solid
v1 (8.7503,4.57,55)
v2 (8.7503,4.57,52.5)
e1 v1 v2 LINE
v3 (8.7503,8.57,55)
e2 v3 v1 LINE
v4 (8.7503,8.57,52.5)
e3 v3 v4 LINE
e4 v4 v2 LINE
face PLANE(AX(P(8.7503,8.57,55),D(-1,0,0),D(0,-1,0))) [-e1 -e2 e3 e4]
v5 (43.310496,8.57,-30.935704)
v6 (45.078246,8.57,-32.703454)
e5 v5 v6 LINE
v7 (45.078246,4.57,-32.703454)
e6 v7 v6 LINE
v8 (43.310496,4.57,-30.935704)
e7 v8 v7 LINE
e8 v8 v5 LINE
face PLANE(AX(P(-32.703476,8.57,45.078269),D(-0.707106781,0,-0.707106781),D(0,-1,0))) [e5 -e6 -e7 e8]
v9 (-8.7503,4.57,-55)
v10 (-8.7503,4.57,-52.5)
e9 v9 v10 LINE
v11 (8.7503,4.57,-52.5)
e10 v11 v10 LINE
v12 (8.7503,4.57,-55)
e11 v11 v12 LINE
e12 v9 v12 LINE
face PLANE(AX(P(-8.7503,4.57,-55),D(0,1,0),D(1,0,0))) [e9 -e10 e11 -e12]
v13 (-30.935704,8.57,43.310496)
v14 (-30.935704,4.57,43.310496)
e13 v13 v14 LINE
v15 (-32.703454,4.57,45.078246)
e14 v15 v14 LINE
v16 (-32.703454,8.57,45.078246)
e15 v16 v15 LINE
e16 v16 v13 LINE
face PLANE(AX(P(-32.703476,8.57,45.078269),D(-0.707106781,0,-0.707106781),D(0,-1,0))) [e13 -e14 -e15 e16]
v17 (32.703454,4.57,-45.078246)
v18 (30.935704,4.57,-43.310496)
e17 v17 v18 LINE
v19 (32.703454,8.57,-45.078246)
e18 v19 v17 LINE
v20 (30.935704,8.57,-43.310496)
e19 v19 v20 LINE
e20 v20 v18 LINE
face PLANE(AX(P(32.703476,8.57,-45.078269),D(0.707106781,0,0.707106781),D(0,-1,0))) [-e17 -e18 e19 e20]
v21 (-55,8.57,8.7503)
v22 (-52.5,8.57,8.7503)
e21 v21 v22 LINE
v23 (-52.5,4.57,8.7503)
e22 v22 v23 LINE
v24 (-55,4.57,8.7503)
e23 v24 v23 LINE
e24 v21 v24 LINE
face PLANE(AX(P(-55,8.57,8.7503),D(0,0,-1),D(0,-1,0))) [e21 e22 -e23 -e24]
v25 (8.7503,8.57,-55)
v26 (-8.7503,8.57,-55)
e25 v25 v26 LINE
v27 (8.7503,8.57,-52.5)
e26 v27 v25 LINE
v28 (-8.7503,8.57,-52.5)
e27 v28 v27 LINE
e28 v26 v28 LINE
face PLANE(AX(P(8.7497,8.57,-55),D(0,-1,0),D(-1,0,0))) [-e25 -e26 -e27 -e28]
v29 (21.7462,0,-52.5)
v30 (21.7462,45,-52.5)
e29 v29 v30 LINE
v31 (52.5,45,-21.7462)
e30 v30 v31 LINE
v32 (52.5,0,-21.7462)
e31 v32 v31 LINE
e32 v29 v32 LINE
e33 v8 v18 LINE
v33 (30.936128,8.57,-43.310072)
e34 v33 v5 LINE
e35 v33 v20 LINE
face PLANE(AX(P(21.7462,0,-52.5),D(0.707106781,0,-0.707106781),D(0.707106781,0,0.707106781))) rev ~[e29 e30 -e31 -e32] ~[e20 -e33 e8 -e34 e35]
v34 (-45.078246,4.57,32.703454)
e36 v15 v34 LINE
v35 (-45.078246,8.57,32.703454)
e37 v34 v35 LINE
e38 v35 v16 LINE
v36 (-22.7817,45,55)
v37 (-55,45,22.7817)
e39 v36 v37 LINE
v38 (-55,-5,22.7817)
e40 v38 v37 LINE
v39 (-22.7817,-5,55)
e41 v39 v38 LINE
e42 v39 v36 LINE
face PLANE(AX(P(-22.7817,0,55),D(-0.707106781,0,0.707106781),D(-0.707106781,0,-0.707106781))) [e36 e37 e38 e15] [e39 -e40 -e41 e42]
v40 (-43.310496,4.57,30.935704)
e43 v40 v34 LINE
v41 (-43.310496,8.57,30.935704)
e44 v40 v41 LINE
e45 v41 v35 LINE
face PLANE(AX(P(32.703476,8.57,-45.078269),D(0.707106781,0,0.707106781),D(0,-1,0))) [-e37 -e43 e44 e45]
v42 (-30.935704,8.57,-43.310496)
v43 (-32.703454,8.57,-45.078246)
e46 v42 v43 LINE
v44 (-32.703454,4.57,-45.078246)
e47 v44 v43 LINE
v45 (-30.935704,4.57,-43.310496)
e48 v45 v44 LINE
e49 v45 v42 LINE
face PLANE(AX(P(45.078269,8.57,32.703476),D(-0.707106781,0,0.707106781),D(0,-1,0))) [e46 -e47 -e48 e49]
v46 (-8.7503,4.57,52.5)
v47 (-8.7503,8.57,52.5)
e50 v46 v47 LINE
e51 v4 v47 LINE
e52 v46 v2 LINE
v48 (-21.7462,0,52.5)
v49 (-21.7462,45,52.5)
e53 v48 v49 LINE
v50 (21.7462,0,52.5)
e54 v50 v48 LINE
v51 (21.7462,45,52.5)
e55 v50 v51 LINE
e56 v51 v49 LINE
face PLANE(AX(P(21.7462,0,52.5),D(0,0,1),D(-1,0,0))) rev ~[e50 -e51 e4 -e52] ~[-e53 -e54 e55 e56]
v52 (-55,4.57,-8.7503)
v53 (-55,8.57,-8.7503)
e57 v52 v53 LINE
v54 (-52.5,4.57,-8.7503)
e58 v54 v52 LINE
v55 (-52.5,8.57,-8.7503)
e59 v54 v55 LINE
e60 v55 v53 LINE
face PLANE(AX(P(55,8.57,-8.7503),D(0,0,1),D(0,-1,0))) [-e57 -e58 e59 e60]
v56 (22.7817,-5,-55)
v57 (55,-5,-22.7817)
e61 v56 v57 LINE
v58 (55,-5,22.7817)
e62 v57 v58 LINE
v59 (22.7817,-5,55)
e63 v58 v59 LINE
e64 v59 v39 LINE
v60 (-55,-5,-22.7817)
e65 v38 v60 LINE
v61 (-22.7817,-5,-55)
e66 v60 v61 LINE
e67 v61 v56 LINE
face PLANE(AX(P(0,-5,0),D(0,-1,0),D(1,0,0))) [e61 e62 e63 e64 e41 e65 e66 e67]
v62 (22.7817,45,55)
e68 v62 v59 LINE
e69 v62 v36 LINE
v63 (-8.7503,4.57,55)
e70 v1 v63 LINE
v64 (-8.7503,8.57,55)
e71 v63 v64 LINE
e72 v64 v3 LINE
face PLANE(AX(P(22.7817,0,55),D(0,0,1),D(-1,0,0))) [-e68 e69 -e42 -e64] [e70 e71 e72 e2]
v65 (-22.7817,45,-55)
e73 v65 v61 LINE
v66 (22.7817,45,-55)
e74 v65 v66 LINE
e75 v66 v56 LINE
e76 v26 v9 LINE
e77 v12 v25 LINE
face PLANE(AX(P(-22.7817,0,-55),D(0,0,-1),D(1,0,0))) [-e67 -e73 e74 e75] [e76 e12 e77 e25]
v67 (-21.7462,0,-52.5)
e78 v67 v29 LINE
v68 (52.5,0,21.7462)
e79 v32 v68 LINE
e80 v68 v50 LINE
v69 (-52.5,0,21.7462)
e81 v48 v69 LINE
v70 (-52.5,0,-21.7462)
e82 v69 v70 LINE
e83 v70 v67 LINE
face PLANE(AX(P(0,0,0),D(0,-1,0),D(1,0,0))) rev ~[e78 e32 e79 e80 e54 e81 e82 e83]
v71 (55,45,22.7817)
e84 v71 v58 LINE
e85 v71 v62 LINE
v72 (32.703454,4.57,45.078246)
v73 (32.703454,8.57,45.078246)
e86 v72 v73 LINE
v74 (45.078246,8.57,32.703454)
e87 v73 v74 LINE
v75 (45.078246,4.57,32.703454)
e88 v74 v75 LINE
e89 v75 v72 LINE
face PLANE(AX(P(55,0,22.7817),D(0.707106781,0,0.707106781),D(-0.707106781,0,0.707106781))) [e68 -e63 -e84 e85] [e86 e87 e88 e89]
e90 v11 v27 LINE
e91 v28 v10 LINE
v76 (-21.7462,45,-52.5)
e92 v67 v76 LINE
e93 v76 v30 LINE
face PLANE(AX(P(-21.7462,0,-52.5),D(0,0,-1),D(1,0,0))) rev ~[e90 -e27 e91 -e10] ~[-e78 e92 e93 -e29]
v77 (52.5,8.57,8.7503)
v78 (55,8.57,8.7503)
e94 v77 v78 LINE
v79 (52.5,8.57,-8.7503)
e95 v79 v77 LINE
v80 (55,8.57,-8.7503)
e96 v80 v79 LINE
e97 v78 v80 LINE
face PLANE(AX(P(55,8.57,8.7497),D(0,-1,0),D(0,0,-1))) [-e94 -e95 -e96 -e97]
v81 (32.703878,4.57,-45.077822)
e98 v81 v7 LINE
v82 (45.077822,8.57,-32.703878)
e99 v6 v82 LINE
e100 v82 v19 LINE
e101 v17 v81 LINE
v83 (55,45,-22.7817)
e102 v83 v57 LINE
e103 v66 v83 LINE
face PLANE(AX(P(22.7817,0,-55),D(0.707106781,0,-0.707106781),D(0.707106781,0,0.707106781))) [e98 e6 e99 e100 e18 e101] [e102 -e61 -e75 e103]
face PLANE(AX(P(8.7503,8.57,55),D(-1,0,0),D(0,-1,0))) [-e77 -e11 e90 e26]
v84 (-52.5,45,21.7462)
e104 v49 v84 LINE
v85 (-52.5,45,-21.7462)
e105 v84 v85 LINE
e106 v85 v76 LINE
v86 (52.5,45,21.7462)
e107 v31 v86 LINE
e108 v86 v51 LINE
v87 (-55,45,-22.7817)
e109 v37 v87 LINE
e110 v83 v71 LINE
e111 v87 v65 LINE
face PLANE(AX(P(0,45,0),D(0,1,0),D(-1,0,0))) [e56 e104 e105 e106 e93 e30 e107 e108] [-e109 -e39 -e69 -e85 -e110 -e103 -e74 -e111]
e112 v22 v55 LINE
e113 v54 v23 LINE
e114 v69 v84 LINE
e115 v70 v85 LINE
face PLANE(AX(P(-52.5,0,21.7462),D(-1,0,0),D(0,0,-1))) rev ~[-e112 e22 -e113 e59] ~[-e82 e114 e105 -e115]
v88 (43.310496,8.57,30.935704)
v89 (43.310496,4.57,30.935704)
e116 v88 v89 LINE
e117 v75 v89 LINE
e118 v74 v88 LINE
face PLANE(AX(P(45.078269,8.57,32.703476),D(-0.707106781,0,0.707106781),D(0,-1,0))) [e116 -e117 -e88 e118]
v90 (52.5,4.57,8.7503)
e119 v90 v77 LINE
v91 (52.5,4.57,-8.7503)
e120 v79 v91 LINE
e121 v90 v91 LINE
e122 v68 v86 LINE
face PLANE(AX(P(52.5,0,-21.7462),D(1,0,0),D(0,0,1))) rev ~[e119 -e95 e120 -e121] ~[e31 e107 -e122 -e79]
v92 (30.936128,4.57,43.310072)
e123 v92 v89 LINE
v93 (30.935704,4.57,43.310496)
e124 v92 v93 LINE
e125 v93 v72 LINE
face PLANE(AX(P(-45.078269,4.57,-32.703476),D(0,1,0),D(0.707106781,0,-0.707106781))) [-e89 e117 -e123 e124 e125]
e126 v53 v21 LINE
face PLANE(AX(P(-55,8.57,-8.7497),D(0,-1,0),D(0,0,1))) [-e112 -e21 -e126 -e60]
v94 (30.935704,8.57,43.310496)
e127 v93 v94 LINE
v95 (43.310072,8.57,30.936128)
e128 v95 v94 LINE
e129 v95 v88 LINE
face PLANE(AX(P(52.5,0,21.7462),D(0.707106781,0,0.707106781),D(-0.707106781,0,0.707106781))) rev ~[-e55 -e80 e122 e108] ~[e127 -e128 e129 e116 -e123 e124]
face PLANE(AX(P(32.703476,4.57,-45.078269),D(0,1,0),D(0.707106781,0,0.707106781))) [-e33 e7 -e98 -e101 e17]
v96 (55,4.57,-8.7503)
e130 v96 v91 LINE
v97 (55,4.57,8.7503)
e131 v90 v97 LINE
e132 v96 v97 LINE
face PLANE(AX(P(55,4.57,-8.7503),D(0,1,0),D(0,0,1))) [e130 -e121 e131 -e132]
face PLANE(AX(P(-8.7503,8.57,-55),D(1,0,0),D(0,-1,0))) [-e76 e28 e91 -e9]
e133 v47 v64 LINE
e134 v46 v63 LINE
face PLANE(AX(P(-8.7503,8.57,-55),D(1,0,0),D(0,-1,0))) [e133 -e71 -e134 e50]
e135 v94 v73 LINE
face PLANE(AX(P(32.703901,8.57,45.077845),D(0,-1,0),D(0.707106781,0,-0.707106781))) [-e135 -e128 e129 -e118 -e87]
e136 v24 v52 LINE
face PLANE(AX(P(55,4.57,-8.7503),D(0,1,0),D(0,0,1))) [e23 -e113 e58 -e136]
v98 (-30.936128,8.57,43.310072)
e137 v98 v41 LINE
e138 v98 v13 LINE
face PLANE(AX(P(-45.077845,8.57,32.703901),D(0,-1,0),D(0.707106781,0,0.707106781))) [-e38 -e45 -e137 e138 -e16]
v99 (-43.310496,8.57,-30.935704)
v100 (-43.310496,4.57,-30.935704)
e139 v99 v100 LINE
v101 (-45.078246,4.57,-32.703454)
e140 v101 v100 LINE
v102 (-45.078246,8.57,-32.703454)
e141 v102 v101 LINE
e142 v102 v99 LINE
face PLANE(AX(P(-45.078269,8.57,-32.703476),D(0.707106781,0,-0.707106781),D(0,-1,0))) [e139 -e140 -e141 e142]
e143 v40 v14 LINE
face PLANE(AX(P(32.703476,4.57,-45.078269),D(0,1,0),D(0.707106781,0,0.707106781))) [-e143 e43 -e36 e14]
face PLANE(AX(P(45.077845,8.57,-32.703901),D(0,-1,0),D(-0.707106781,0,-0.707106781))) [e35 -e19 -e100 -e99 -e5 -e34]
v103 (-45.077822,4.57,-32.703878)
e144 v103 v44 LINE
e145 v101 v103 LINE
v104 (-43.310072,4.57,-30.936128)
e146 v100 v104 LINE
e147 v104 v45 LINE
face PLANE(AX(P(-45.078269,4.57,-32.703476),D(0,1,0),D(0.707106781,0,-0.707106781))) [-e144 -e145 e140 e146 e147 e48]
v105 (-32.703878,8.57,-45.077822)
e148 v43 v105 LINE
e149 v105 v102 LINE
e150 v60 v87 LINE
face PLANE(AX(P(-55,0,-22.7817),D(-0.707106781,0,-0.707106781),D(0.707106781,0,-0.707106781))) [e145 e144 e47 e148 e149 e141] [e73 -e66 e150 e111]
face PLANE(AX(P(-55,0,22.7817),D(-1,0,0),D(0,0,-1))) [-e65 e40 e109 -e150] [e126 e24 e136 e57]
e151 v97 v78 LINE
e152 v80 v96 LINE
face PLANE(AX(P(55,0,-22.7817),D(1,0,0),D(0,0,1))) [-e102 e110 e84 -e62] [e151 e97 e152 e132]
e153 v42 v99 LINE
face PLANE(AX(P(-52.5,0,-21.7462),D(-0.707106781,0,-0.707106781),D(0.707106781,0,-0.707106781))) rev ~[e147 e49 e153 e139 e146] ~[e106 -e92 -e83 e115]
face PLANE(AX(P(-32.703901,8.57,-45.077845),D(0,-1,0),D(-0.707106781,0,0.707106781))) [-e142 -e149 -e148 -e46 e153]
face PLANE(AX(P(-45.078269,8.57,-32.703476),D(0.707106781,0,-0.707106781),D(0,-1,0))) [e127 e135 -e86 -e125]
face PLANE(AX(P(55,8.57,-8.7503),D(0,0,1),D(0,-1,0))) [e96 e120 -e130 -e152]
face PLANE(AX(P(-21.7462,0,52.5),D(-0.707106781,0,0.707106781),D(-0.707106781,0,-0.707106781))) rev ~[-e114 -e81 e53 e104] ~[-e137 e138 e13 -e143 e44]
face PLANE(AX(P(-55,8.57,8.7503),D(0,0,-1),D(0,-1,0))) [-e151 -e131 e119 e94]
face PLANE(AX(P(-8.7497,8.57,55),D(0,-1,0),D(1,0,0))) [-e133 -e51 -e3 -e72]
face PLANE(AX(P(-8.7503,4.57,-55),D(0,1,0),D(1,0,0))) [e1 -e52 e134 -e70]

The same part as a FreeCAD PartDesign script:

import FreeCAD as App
import Part
import Sketcher

V = App.Vector

doc = App.newDocument("Part")
body = doc.addObject("PartDesign::Body", "Body")

sketch1 = body.newObject("Sketcher::SketchObject", "Sketch")
sketch1.AttachmentSupport = (doc.getObject("XZ_Plane"), [""])
sketch1.MapMode = "FlatFace"
sketch1.addGeometry([
    Part.LineSegment(V(-23, -55, 0), V(-55, -23, 0)),
    Part.LineSegment(V(-55, -23, 0), V(-55, 23, 0)),
    Part.LineSegment(V(-55, 23, 0), V(-23, 55, 0)),
    Part.LineSegment(V(-23, 55, 0), V(23, 55, 0)),
    Part.LineSegment(V(23, 55, 0), V(55, 23, 0)),
    Part.LineSegment(V(55, 23, 0), V(55, -23, 0)),
    Part.LineSegment(V(55, -23, 0), V(23, -55, 0)),
    Part.LineSegment(V(23, -55, 0), V(-23, -55, 0)),
    Part.LineSegment(V(-52, 22, 0), V(-52, -22, 0)),
    Part.LineSegment(V(-52, -22, 0), V(-22, -52, 0)),
    Part.LineSegment(V(-22, -52, 0), V(22, -52, 0)),
    Part.LineSegment(V(22, -52, 0), V(52, -22, 0)),
    Part.LineSegment(V(52, -22, 0), V(52, 22, 0)),
    Part.LineSegment(V(52, 22, 0), V(22, 52, 0)),
    Part.LineSegment(V(22, 52, 0), V(-22, 52, 0)),
    Part.LineSegment(V(-22, 52, 0), V(-52, 22, 0)),
], False)
sketch1.addConstraint([
    Sketcher.Constraint("Coincident", 0, 2, 1, 1),
    Sketcher.Constraint("Coincident", 1, 2, 2, 1),
    Sketcher.Constraint("Coincident", 2, 2, 3, 1),
    Sketcher.Constraint("Coincident", 3, 2, 4, 1),
    Sketcher.Constraint("Coincident", 4, 2, 5, 1),
    Sketcher.Constraint("Coincident", 5, 2, 6, 1),
    Sketcher.Constraint("Coincident", 6, 2, 7, 1),
    Sketcher.Constraint("Coincident", 7, 2, 0, 1),
    Sketcher.Constraint("Coincident", 8, 2, 9, 1),
    Sketcher.Constraint("Coincident", 9, 2, 10, 1),
    Sketcher.Constraint("Coincident", 10, 2, 11, 1),
    Sketcher.Constraint("Coincident", 11, 2, 12, 1),
    Sketcher.Constraint("Coincident", 12, 2, 13, 1),
    Sketcher.Constraint("Coincident", 13, 2, 14, 1),
    Sketcher.Constraint("Coincident", 14, 2, 15, 1),
    Sketcher.Constraint("Coincident", 15, 2, 8, 1),
    Sketcher.Constraint("Vertical", 1),
    Sketcher.Constraint("Horizontal", 3),
    Sketcher.Constraint("Vertical", 5),
    Sketcher.Constraint("Horizontal", 7),
    Sketcher.Constraint("Vertical", 8),
    Sketcher.Constraint("Horizontal", 10),
    Sketcher.Constraint("Vertical", 12),
    Sketcher.Constraint("Horizontal", 14),
    Sketcher.Constraint("Symmetric", 0, 2, 4, 2, -1, 1),
    Sketcher.Constraint("Symmetric", 2, 2, 6, 2, -1, 1),
    Sketcher.Constraint("Symmetric", 8, 2, 12, 2, -1, 1),
    Sketcher.Constraint("Symmetric", 9, 2, 13, 2, -1, 1),
    Sketcher.Constraint("Perpendicular", 0, 2),
    Sketcher.Constraint("Perpendicular", 2, 4),
    Sketcher.Constraint("Perpendicular", 4, 6),
    Sketcher.Constraint("Perpendicular", 6, 9),
    Sketcher.Constraint("Perpendicular", 9, 11),
    Sketcher.Constraint("Perpendicular", 13, 15),
    Sketcher.Constraint("Horizontal", 1, 2, 4, 2),
    Sketcher.Constraint("Horizontal", 8, 2, 11, 2),
    Sketcher.Constraint("Horizontal", 12, 2, 15, 2),
    Sketcher.Constraint("Vertical", 3, 2, 6, 2),
    Sketcher.Constraint("Equal", 7, 1),
    Sketcher.Constraint("Equal", 14, 8),
    Sketcher.Constraint("DistanceX", 1, 2, 4, 2, 110.0),
    Sketcher.Constraint("DistanceX", 0, 2, 8, 2, 2.5),
    Sketcher.Constraint("DistanceX", 3, 1, 3, 2, 45.5634),
    Sketcher.Constraint("DistanceX", 10, 1, 10, 2, 43.4924),
])
pad1 = body.newObject("PartDesign::Pad", "Pad")
pad1.Profile = sketch1
pad1.Length = 45
pad1.Reversed = True

sketch2 = body.newObject("Sketcher::SketchObject", "Sketch001")
sketch2.AttachmentSupport = (doc.getObject("XZ_Plane"), [""])
sketch2.MapMode = "FlatFace"
sketch2.addGeometry([
    Part.LineSegment(V(-55, 23, 0), V(-55, -23, 0)),
    Part.LineSegment(V(-55, -23, 0), V(-23, -55, 0)),
    Part.LineSegment(V(-23, -55, 0), V(23, -55, 0)),
    Part.LineSegment(V(23, -55, 0), V(55, -23, 0)),
    Part.LineSegment(V(55, -23, 0), V(55, 23, 0)),
    Part.LineSegment(V(55, 23, 0), V(23, 55, 0)),
    Part.LineSegment(V(23, 55, 0), V(-23, 55, 0)),
    Part.LineSegment(V(-23, 55, 0), V(-55, 23, 0)),
], False)
sketch2.addConstraint([
    Sketcher.Constraint("Coincident", 0, 2, 1, 1),
    Sketcher.Constraint("Coincident", 1, 2, 2, 1),
    Sketcher.Constraint("Coincident", 2, 2, 3, 1),
    Sketcher.Constraint("Coincident", 3, 2, 4, 1),
    Sketcher.Constraint("Coincident", 4, 2, 5, 1),
    Sketcher.Constraint("Coincident", 5, 2, 6, 1),
    Sketcher.Constraint("Coincident", 6, 2, 7, 1),
    Sketcher.Constraint("Coincident", 7, 2, 0, 1),
    Sketcher.Constraint("Vertical", 0),
    Sketcher.Constraint("Horizontal", 2),
    Sketcher.Constraint("Vertical", 4),
    Sketcher.Constraint("Horizontal", 6),
    Sketcher.Constraint("Symmetric", 0, 2, 4, 2, -1, 1),
    Sketcher.Constraint("Symmetric", 1, 2, 5, 2, -1, 1),
    Sketcher.Constraint("Perpendicular", 1, 3),
    Sketcher.Constraint("Perpendicular", 5, 7),
    Sketcher.Constraint("Horizontal", 0, 2, 3, 2),
    Sketcher.Constraint("Horizontal", 4, 2, 7, 2),
    Sketcher.Constraint("Vertical", 2, 2, 5, 2),
    Sketcher.Constraint("Equal", 6, 0),
    Sketcher.Constraint("DistanceX", 0, 2, -1, 1, 55.0),
    Sketcher.Constraint("DistanceX", 2, 1, 2, 2, 45.5634),
])
pad2 = body.newObject("PartDesign::Pad", "Pad001")
pad2.Profile = sketch2
pad2.Length = 5

sketch3 = body.newObject("Sketcher::SketchObject", "Sketch002")
sketch3.AttachmentSupport = (doc.getObject("YZ_Plane"), [""])
sketch3.MapMode = "FlatFace"
sketch3.AttachmentOffset = App.Placement(V(0, 0, 55), App.Rotation())
sketch3.addGeometry([
    Part.LineSegment(V(8.6, -8.8, 0), V(8.6, 8.7, 0)),
    Part.LineSegment(V(8.6, 8.7, 0), V(4.6, 8.7, 0)),
    Part.LineSegment(V(4.6, 8.7, 0), V(4.6, -8.8, 0)),
    Part.LineSegment(V(4.6, -8.8, 0), V(8.6, -8.8, 0)),
], False)
sketch3.addConstraint([
    Sketcher.Constraint("Coincident", 0, 2, 1, 1),
    Sketcher.Constraint("Coincident", 1, 2, 2, 1),
    Sketcher.Constraint("Coincident", 2, 2, 3, 1),
    Sketcher.Constraint("Coincident", 3, 2, 0, 1),
    Sketcher.Constraint("Vertical", 0),
    Sketcher.Constraint("Horizontal", 1),
    Sketcher.Constraint("Vertical", 2),
    Sketcher.Constraint("Horizontal", 3),
    Sketcher.Constraint("DistanceX", 1, 2, 1, 1, 4.0),
    Sketcher.Constraint("DistanceY", 0, 1, 0, 2, 17.5),
    Sketcher.Constraint("DistanceX", -1, 1, 0, 2, 8.57),
    Sketcher.Constraint("DistanceY", -1, 1, 0, 2, 8.7497),
])
pocket1 = body.newObject("PartDesign::Pocket", "Pocket")
pocket1.Profile = sketch3
pocket1.Type = "ThroughAll"
doc.recompute()

polarpattern = body.newObject("PartDesign::PolarPattern", "PolarPattern")
polarpattern.Originals = [pocket1]
polarpattern.Axis = (doc.getObject("Y_Axis"), [""])
polarpattern.Angle = 360
polarpattern.Occurrences = 8
body.Tip = polarpattern

doc.recompute()
